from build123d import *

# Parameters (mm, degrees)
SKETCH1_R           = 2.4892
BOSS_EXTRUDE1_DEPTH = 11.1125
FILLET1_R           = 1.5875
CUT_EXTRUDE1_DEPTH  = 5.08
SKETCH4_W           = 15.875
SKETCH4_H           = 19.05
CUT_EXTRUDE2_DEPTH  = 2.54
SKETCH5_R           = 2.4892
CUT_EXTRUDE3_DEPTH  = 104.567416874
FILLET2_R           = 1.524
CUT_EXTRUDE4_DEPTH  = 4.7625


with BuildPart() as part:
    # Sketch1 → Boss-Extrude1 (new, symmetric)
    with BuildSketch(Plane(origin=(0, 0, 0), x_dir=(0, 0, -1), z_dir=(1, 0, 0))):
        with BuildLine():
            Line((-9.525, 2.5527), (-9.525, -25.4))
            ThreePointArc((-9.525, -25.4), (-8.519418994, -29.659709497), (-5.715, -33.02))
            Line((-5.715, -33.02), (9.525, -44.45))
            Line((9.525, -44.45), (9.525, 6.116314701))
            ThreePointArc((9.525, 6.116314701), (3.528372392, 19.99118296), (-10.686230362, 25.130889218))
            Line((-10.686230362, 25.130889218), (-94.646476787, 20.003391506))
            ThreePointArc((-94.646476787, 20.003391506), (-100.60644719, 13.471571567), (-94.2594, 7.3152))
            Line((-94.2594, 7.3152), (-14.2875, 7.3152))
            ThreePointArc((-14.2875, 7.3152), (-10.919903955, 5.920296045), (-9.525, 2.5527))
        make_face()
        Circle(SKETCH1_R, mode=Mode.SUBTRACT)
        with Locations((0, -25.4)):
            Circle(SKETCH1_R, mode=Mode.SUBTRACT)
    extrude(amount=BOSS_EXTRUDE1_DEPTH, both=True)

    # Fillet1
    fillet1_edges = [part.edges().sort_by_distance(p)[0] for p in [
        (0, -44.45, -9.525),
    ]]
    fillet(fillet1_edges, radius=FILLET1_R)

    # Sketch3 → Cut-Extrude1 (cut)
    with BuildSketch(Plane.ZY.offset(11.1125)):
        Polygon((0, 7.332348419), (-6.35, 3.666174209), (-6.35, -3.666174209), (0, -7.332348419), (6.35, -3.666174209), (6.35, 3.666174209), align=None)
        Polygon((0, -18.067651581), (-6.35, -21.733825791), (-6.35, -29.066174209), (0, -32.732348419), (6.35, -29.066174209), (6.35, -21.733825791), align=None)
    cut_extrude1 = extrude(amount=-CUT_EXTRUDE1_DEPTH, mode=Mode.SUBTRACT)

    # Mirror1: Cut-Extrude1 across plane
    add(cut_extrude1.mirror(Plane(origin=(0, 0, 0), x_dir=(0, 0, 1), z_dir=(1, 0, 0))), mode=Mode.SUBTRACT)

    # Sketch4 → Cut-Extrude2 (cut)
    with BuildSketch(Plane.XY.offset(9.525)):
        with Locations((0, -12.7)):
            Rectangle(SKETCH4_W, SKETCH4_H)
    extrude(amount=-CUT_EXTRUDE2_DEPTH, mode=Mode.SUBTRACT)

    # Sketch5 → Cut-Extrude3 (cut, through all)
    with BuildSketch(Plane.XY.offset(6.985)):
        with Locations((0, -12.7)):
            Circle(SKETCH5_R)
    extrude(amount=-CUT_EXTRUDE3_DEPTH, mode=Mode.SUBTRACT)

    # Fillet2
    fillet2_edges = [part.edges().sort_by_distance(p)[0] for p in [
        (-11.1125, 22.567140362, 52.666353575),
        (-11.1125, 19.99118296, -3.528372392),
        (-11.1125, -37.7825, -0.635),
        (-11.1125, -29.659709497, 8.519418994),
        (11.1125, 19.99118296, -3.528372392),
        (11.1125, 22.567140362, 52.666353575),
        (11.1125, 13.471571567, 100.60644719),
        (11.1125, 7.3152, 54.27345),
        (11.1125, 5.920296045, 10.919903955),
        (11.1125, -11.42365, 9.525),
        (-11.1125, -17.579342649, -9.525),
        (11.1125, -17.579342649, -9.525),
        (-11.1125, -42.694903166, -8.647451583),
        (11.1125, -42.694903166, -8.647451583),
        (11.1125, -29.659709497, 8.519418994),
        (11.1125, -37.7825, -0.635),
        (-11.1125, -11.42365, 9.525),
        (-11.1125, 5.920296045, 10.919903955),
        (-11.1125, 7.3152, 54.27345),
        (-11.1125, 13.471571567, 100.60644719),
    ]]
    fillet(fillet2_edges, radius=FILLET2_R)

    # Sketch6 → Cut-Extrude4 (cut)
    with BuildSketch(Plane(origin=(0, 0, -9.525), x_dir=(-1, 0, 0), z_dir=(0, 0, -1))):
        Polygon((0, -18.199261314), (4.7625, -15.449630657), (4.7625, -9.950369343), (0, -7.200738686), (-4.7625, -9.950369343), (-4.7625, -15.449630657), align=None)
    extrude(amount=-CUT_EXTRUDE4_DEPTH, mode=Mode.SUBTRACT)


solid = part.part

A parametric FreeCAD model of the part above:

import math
import FreeCAD as App
import Part
import Sketcher
from FreeCAD import Vector
Q = App.Units.Quantity


def edges_at(feature, points):
    """Names of the edges that pass closest to the given points."""
    edges = feature.Shape.Edges
    near = lambda p: min(range(len(edges)), key=lambda i: edges[i].distToShape(Part.Vertex(*p))[0])
    return sorted({f"Edge{near(p) + 1}" for p in points})

doc = App.newDocument("Part")
body = doc.addObject("PartDesign::Body", "Body")

sketch1 = body.newObject("Sketcher::SketchObject", "Sketch")
sketch1.AttachmentSupport = (doc.getObject("YZ_Plane"), [""])
sketch1.MapMode = "FlatFace"
sketch1.addGeometry(Part.LineSegment(Vector(2.6, 9.5, 0), Vector(-25.4, 9.5, 0)), False)
sketch1.addGeometry(Part.ArcOfCircle(Part.Circle(Vector(-25.4, 0, 0), Vector(0, 0, 1), 9.5), math.radians(90), math.radians(143)), False)
sketch1.addGeometry(Part.LineSegment(Vector(-33, 5.7, 0), Vector(-44.5, -9.5, 0)), False)
sketch1.addGeometry(Part.LineSegment(Vector(-44.5, -9.5, 0), Vector(6.1, -9.5, 0)), False)
sketch1.addGeometry(Part.ArcOfCircle(Part.Circle(Vector(6.1, 9.5, 0), Vector(0, 0, 1), 19.1), math.radians(-90), math.radians(3)), False)
sketch1.addGeometry(Part.LineSegment(Vector(25.1, 10.7, 0), Vector(20, 94.6, 0)), False)
sketch1.addGeometry(Part.ArcOfCircle(Part.Circle(Vector(13.7, 94.3, 0), Vector(0, 0, 1), 6.3), math.radians(3), math.radians(180)), False)
sketch1.addGeometry(Part.LineSegment(Vector(7.3, 94.3, 0), Vector(7.3, 14.3, 0)), False)
sketch1.addGeometry(Part.ArcOfCircle(Part.Circle(Vector(2.6, 14.3, 0), Vector(0, 0, 1), 4.8), math.radians(-90), math.radians(0)), False)
sketch1.addGeometry(Part.Circle(Vector(-25.4, 0, 0), Vector(0, 0, 1), 2.5), False)
sketch1.addGeometry(Part.Circle(Vector(0, 0, 0), Vector(0, 0, 1), 2.5), False)
sketch1.addConstraint(Sketcher.Constraint("Tangent", 0, 2, 1, 1))
sketch1.addConstraint(Sketcher.Constraint("Tangent", 1, 2, 2, 1))
sketch1.addConstraint(Sketcher.Constraint("Coincident", 2, 2, 3, 1))
sketch1.addConstraint(Sketcher.Constraint("Tangent", 3, 2, 4, 1))
sketch1.addConstraint(Sketcher.Constraint("Tangent", 4, 2, 5, 1))
sketch1.addConstraint(Sketcher.Constraint("Tangent", 5, 2, 6, 1))
sketch1.addConstraint(Sketcher.Constraint("Tangent", 6, 2, 7, 1))
sketch1.addConstraint(Sketcher.Constraint("Tangent", 7, 2, 8, 2))
sketch1.addConstraint(Sketcher.Constraint("Tangent", 8, 1, 0, 1))
sketch1.addConstraint(Sketcher.Constraint("Horizontal", 0))
sketch1.addConstraint(Sketcher.Constraint("Horizontal", 3))
sketch1.addConstraint(Sketcher.Constraint("Vertical", 7))
sketch1.addConstraint(Sketcher.Constraint("Coincident", 10, 3, -1, 1))
sketch1.addConstraint(Sketcher.Constraint("Coincident", 9, 3, 1, 3))
sketch1.addConstraint(Sketcher.Constraint("Equal", 9, 10))
sketch1.addConstraint(Sketcher.Constraint("PointOnObject", 1, 3, -1))
sketch1.addConstraint(Sketcher.Constraint("Horizontal", 4, 3, 0, 2))
sketch1.addConstraint(Sketcher.Constraint("Radius", 4, Q("0.75 in")))
sketch1.addConstraint(Sketcher.Constraint("Radius", 6, Q("0.25 in")))
sketch1.addConstraint(Sketcher.Constraint("Diameter", 9, Q("0.196 in")))
sketch1.addConstraint(Sketcher.Constraint("DistanceX", 1, 3, -1, 1, Q("1 in")))
sketch1.addConstraint(Sketcher.Constraint("Radius", 1, Q("0.375 in")))
sketch1.addConstraint(Sketcher.Constraint("Radius", 8, Q("0.1875 in")))
sketch1.addConstraint(Sketcher.Constraint("DistanceX", 1, 2, -1, 1, Q("1.3 in")))
sketch1.addConstraint(Sketcher.Constraint("DistanceX", 0, 2, 0, 1, Q("1.1005 in")))
sketch1.addConstraint(Sketcher.Constraint("DistanceY", 7, 2, 7, 1, Q("3.1485 in")))
sketch1.addConstraint(Sketcher.Constraint("Distance", 5, Q("84.11667 mm")))
pad1 = body.newObject("PartDesign::Pad", "Pad")
pad1.Profile = sketch1
pad1.Length = Q("0.875 in")
pad1.Midplane = True
doc.recompute()

fillet = body.newObject("PartDesign::Fillet", "Fillet")
fillet.Base = (pad1, edges_at(pad1, [(0, -44.45, -9.525)]))
fillet.Radius = Q("0.0625 in")

sketch2 = body.newObject("Sketcher::SketchObject", "Sketch001")
sketch2.AttachmentSupport = (doc.getObject("YZ_Plane"), [""])
sketch2.MapMode = "FlatFace"
sketch2.AttachmentOffset = App.Placement(Vector(0, 0, -0.4375 * 25.4), App.Rotation())
sketch2.addGeometry(Part.LineSegment(Vector(7, 0, 0), Vector(4, -6, 0)), False)
sketch2.addGeometry(Part.LineSegment(Vector(4, -6, 0), Vector(-4, -6, 0)), False)
sketch2.addGeometry(Part.LineSegment(Vector(-4, -6, 0), Vector(-7, 0, 0)), False)
sketch2.addGeometry(Part.LineSegment(Vector(-7, 0, 0), Vector(-4, 6, 0)), False)
sketch2.addGeometry(Part.LineSegment(Vector(-4, 6, 0), Vector(4, 6, 0)), False)
sketch2.addGeometry(Part.LineSegment(Vector(4, 6, 0), Vector(7, 0, 0)), False)
sketch2.addGeometry(Part.LineSegment(Vector(-18, 0, 0), Vector(-22, -6, 0)), False)
sketch2.addGeometry(Part.LineSegment(Vector(-22, -6, 0), Vector(-29, -6, 0)), False)
sketch2.addGeometry(Part.LineSegment(Vector(-29, -6, 0), Vector(-33, 0, 0)), False)
sketch2.addGeometry(Part.LineSegment(Vector(-33, 0, 0), Vector(-29, 6, 0)), False)
sketch2.addGeometry(Part.LineSegment(Vector(-29, 6, 0), Vector(-22, 6, 0)), False)
sketch2.addGeometry(Part.LineSegment(Vector(-22, 6, 0), Vector(-18, 0, 0)), False)
sketch2.addConstraint(Sketcher.Constraint("Coincident", 0, 2, 1, 1))
sketch2.addConstraint(Sketcher.Constraint("Coincident", 1, 2, 2, 1))
sketch2.addConstraint(Sketcher.Constraint("Coincident", 2, 2, 3, 1))
sketch2.addConstraint(Sketcher.Constraint("Coincident", 3, 2, 4, 1))
sketch2.addConstraint(Sketcher.Constraint("Coincident", 4, 2, 5, 1))
sketch2.addConstraint(Sketcher.Constraint("Coincident", 5, 2, 0, 1))
sketch2.addConstraint(Sketcher.Constraint("Coincident", 6, 2, 7, 1))
sketch2.addConstraint(Sketcher.Constraint("Coincident", 7, 2, 8, 1))
sketch2.addConstraint(Sketcher.Constraint("Coincident", 8, 2, 9, 1))
sketch2.addConstraint(Sketcher.Constraint("Coincident", 9, 2, 10, 1))
sketch2.addConstraint(Sketcher.Constraint("Coincident", 10, 2, 11, 1))
sketch2.addConstraint(Sketcher.Constraint("Coincident", 11, 2, 6, 1))
sketch2.addConstraint(Sketcher.Constraint("Horizontal", 1))
sketch2.addConstraint(Sketcher.Constraint("Horizontal", 4))
sketch2.addConstraint(Sketcher.Constraint("Horizontal", 7))
sketch2.addConstraint(Sketcher.Constraint("Horizontal", 10))
sketch2.addConstraint(Sketcher.Constraint("Symmetric", 0, 2, 3, 2, -1, 1))
sketch2.addConstraint(Sketcher.Constraint("Symmetric", 2, 2, 5, 2, -1, 1))
sketch2.addConstraint(Sketcher.Constraint("Symmetric", 7, 2, 9, 2, -1))
sketch2.addConstraint(Sketcher.Constraint("PointOnObject", 2, 2, -1))
sketch2.addConstraint(Sketcher.Constraint("PointOnObject", 8, 2, -1))
sketch2.addConstraint(Sketcher.Constraint("PointOnObject", 11, 2, -1))
sketch2.addConstraint(Sketcher.Constraint("Parallel", 2, 5))
sketch2.addConstraint(Sketcher.Constraint("Parallel", 3, 6))
sketch2.addConstraint(Sketcher.Constraint("Parallel", 5, 8))
sketch2.addConstraint(Sketcher.Constraint("Parallel", 6, 9))
sketch2.addConstraint(Sketcher.Constraint("Parallel", 8, 11))
sketch2.addConstraint(Sketcher.Constraint("Horizontal", 1, 2, 6, 2))
sketch2.addConstraint(Sketcher.Constraint("Equal", 4, 7))
sketch2.addConstraint(Sketcher.Constraint("Angle", 0, Q("-120 deg")))
sketch2.addConstraint(Sketcher.Constraint("DistanceX", 6, 2, 0, 2, Q("1 in")))
sketch2.addConstraint(Sketcher.Constraint("DistanceY", 1, 2, 3, 2, Q("0.5 in")))
sketch2.addConstraint(Sketcher.Constraint("DistanceX", 1, 2, 1, 1, Q("7.332348 mm")))
pocket1 = body.newObject("PartDesign::Pocket", "Pocket")
pocket1.Profile = sketch2
pocket1.Length = Q("0.2 in")
pocket1.Reversed = True
doc.recompute()

mirrored = body.newObject("PartDesign::Mirrored", "Mirrored")
mirrored.Originals = [pocket1]
mirrored.MirrorPlane = (doc.getObject("YZ_Plane"), [""])
body.Tip = mirrored

sketch3 = body.newObject("Sketcher::SketchObject", "Sketch002")
sketch3.AttachmentSupport = (doc.getObject("XY_Plane"), [""])
sketch3.MapMode = "FlatFace"
sketch3.AttachmentOffset = App.Placement(Vector(0, 0, 0.375 * 25.4), App.Rotation())
sketch3.addGeometry(Part.LineSegment(Vector(-8, -3, 0), Vector(-8, -22, 0)), False)
sketch3.addGeometry(Part.LineSegment(Vector(-8, -22, 0), Vector(8, -22, 0)), False)
sketch3.addGeometry(Part.LineSegment(Vector(8, -22, 0), Vector(8, -3, 0)), False)
sketch3.addGeometry(Part.LineSegment(Vector(8, -3, 0), Vector(-8, -3, 0)), False)
sketch3.addConstraint(Sketcher.Constraint("Coincident", 0, 2, 1, 1))
sketch3.addConstraint(Sketcher.Constraint("Coincident", 1, 2, 2, 1))
sketch3.addConstraint(Sketcher.Constraint("Coincident", 2, 2, 3, 1))
sketch3.addConstraint(Sketcher.Constraint("Coincident", 3, 2, 0, 1))
sketch3.addConstraint(Sketcher.Constraint("Vertical", 0))
sketch3.addConstraint(Sketcher.Constraint("Horizontal", 1))
sketch3.addConstraint(Sketcher.Constraint("Vertical", 2))
sketch3.addConstraint(Sketcher.Constraint("Horizontal", 3))
sketch3.addConstraint(Sketcher.Constraint("DistanceY", 0, 2, 0, 1, Q("0.75 in")))
sketch3.addConstraint(Sketcher.Constraint("DistanceX", 1, 1, 1, 2, Q("0.625 in")))
sketch3.addConstraint(Sketcher.Constraint("DistanceX", 0, 2, -1, 1, Q("0.3125 in")))
sketch3.addConstraint(Sketcher.Constraint("DistanceY", 0, 2, -1, 1, Q("0.875 in")))
pocket2 = body.newObject("PartDesign::Pocket", "Pocket001")
pocket2.Profile = sketch3
pocket2.Length = Q("0.1 in")

sketch4 = body.newObject("Sketcher::SketchObject", "Sketch003")
sketch4.AttachmentSupport = (doc.getObject("XY_Plane"), [""])
sketch4.MapMode = "FlatFace"
sketch4.AttachmentOffset = App.Placement(Vector(0, 0, 0.275 * 25.4), App.Rotation())
sketch4.addGeometry(Part.Circle(Vector(0, -12.7, 0), Vector(0, 0, 1), 2.5), False)
sketch4.addConstraint(Sketcher.Constraint("PointOnObject", 0, 3, -2))
sketch4.addConstraint(Sketcher.Constraint("Diameter", 0, Q("0.196 in")))
sketch4.addConstraint(Sketcher.Constraint("DistanceY", 0, 3, -1, 1, Q("0.5 in")))
pocket3 = body.newObject("PartDesign::Pocket", "Pocket002")
pocket3.Profile = sketch4
pocket3.Type = "ThroughAll"
doc.recompute()

fillet2 = body.newObject("PartDesign::Fillet", "Fillet001")
fillet2.Base = (pocket3, edges_at(pocket3, [
    (-11.113, 22.567, 52.666),
    (-11.113, 19.991, -3.528),
    (-11.113, -37.782, -0.635),
    (-11.113, -29.66, 8.519),
    (11.113, 19.991, -3.528),
    (11.113, 22.567, 52.666),
    (11.113, 13.472, 100.606),
    (11.113, 7.315, 54.273),
    (11.113, 5.92, 10.92),
    (11.113, -11.424, 9.525),
    (-11.113, -17.579, -9.525),
    (11.113, -17.579, -9.525),
    (-11.113, -42.695, -8.647),
    (11.113, -42.695, -8.647),
    (11.113, -29.66, 8.519),
    (11.113, -37.782, -0.635),
    (-11.113, -11.424, 9.525),
    (-11.113, 5.92, 10.92),
    (-11.113, 7.315, 54.273),
    (-11.113, 13.472, 100.606),
]))
fillet2.Radius = Q("0.06 in")

sketch5 = body.newObject("Sketcher::SketchObject", "Sketch004")
sketch5.AttachmentSupport = (doc.getObject("XY_Plane"), [""])
sketch5.MapMode = "FlatFace"
sketch5.AttachmentOffset = App.Placement(Vector(0, 0, -0.375 * 25.4), App.Rotation())
sketch5.addGeometry(Part.LineSegment(Vector(0, -18, 0), Vector(-5, -15, 0)), False)
sketch5.addGeometry(Part.LineSegment(Vector(-5, -15, 0), Vector(-5, -10, 0)), False)
sketch5.addGeometry(Part.LineSegment(Vector(-5, -10, 0), Vector(0, -7, 0)), False)
sketch5.addGeometry(Part.LineSegment(Vector(0, -7, 0), Vector(5, -10, 0)), False)
sketch5.addGeometry(Part.LineSegment(Vector(5, -10, 0), Vector(5, -15, 0)), False)
sketch5.addGeometry(Part.LineSegment(Vector(5, -15, 0), Vector(0, -18, 0)), False)
sketch5.addConstraint(Sketcher.Constraint("Coincident", 0, 2, 1, 1))
sketch5.addConstraint(Sketcher.Constraint("Coincident", 1, 2, 2, 1))
sketch5.addConstraint(Sketcher.Constraint("Coincident", 2, 2, 3, 1))
sketch5.addConstraint(Sketcher.Constraint("Coincident", 3, 2, 4, 1))
sketch5.addConstraint(Sketcher.Constraint("Coincident", 4, 2, 5, 1))
sketch5.addConstraint(Sketcher.Constraint("Coincident", 5, 2, 0, 1))
sketch5.addConstraint(Sketcher.Constraint("Vertical", 1))
sketch5.addConstraint(Sketcher.Constraint("Vertical", 4))
sketch5.addConstraint(Sketcher.Constraint("Symmetric", 1, 2, 3, 2, -2))
sketch5.addConstraint(Sketcher.Constraint("PointOnObject", 2, 2, -2))
sketch5.addConstraint(Sketcher.Constraint("PointOnObject", 5, 2, -2))
sketch5.addConstraint(Sketcher.Constraint("Parallel", 0, 3))
sketch5.addConstraint(Sketcher.Constraint("Parallel", 2, 5))
sketch5.addConstraint(Sketcher.Constraint("Angle", 0, Q("150 deg")))
sketch5.addConstraint(Sketcher.Constraint("DistanceX", 0, 2, -1, 1, Q("0.1875 in")))
sketch5.addConstraint(Sketcher.Constraint("DistanceY", 1, 1, 1, 2, Q("5.499261 mm")))
sketch5.addConstraint(Sketcher.Constraint("DistanceY", 0, 2, -1, 1, Q("15.449631 mm")))
pocket4 = body.newObject("PartDesign::Pocket", "Pocket003")
pocket4.Profile = sketch5
pocket4.Length = Q("0.1875 in")
pocket4.Reversed = True

doc.recompute()
